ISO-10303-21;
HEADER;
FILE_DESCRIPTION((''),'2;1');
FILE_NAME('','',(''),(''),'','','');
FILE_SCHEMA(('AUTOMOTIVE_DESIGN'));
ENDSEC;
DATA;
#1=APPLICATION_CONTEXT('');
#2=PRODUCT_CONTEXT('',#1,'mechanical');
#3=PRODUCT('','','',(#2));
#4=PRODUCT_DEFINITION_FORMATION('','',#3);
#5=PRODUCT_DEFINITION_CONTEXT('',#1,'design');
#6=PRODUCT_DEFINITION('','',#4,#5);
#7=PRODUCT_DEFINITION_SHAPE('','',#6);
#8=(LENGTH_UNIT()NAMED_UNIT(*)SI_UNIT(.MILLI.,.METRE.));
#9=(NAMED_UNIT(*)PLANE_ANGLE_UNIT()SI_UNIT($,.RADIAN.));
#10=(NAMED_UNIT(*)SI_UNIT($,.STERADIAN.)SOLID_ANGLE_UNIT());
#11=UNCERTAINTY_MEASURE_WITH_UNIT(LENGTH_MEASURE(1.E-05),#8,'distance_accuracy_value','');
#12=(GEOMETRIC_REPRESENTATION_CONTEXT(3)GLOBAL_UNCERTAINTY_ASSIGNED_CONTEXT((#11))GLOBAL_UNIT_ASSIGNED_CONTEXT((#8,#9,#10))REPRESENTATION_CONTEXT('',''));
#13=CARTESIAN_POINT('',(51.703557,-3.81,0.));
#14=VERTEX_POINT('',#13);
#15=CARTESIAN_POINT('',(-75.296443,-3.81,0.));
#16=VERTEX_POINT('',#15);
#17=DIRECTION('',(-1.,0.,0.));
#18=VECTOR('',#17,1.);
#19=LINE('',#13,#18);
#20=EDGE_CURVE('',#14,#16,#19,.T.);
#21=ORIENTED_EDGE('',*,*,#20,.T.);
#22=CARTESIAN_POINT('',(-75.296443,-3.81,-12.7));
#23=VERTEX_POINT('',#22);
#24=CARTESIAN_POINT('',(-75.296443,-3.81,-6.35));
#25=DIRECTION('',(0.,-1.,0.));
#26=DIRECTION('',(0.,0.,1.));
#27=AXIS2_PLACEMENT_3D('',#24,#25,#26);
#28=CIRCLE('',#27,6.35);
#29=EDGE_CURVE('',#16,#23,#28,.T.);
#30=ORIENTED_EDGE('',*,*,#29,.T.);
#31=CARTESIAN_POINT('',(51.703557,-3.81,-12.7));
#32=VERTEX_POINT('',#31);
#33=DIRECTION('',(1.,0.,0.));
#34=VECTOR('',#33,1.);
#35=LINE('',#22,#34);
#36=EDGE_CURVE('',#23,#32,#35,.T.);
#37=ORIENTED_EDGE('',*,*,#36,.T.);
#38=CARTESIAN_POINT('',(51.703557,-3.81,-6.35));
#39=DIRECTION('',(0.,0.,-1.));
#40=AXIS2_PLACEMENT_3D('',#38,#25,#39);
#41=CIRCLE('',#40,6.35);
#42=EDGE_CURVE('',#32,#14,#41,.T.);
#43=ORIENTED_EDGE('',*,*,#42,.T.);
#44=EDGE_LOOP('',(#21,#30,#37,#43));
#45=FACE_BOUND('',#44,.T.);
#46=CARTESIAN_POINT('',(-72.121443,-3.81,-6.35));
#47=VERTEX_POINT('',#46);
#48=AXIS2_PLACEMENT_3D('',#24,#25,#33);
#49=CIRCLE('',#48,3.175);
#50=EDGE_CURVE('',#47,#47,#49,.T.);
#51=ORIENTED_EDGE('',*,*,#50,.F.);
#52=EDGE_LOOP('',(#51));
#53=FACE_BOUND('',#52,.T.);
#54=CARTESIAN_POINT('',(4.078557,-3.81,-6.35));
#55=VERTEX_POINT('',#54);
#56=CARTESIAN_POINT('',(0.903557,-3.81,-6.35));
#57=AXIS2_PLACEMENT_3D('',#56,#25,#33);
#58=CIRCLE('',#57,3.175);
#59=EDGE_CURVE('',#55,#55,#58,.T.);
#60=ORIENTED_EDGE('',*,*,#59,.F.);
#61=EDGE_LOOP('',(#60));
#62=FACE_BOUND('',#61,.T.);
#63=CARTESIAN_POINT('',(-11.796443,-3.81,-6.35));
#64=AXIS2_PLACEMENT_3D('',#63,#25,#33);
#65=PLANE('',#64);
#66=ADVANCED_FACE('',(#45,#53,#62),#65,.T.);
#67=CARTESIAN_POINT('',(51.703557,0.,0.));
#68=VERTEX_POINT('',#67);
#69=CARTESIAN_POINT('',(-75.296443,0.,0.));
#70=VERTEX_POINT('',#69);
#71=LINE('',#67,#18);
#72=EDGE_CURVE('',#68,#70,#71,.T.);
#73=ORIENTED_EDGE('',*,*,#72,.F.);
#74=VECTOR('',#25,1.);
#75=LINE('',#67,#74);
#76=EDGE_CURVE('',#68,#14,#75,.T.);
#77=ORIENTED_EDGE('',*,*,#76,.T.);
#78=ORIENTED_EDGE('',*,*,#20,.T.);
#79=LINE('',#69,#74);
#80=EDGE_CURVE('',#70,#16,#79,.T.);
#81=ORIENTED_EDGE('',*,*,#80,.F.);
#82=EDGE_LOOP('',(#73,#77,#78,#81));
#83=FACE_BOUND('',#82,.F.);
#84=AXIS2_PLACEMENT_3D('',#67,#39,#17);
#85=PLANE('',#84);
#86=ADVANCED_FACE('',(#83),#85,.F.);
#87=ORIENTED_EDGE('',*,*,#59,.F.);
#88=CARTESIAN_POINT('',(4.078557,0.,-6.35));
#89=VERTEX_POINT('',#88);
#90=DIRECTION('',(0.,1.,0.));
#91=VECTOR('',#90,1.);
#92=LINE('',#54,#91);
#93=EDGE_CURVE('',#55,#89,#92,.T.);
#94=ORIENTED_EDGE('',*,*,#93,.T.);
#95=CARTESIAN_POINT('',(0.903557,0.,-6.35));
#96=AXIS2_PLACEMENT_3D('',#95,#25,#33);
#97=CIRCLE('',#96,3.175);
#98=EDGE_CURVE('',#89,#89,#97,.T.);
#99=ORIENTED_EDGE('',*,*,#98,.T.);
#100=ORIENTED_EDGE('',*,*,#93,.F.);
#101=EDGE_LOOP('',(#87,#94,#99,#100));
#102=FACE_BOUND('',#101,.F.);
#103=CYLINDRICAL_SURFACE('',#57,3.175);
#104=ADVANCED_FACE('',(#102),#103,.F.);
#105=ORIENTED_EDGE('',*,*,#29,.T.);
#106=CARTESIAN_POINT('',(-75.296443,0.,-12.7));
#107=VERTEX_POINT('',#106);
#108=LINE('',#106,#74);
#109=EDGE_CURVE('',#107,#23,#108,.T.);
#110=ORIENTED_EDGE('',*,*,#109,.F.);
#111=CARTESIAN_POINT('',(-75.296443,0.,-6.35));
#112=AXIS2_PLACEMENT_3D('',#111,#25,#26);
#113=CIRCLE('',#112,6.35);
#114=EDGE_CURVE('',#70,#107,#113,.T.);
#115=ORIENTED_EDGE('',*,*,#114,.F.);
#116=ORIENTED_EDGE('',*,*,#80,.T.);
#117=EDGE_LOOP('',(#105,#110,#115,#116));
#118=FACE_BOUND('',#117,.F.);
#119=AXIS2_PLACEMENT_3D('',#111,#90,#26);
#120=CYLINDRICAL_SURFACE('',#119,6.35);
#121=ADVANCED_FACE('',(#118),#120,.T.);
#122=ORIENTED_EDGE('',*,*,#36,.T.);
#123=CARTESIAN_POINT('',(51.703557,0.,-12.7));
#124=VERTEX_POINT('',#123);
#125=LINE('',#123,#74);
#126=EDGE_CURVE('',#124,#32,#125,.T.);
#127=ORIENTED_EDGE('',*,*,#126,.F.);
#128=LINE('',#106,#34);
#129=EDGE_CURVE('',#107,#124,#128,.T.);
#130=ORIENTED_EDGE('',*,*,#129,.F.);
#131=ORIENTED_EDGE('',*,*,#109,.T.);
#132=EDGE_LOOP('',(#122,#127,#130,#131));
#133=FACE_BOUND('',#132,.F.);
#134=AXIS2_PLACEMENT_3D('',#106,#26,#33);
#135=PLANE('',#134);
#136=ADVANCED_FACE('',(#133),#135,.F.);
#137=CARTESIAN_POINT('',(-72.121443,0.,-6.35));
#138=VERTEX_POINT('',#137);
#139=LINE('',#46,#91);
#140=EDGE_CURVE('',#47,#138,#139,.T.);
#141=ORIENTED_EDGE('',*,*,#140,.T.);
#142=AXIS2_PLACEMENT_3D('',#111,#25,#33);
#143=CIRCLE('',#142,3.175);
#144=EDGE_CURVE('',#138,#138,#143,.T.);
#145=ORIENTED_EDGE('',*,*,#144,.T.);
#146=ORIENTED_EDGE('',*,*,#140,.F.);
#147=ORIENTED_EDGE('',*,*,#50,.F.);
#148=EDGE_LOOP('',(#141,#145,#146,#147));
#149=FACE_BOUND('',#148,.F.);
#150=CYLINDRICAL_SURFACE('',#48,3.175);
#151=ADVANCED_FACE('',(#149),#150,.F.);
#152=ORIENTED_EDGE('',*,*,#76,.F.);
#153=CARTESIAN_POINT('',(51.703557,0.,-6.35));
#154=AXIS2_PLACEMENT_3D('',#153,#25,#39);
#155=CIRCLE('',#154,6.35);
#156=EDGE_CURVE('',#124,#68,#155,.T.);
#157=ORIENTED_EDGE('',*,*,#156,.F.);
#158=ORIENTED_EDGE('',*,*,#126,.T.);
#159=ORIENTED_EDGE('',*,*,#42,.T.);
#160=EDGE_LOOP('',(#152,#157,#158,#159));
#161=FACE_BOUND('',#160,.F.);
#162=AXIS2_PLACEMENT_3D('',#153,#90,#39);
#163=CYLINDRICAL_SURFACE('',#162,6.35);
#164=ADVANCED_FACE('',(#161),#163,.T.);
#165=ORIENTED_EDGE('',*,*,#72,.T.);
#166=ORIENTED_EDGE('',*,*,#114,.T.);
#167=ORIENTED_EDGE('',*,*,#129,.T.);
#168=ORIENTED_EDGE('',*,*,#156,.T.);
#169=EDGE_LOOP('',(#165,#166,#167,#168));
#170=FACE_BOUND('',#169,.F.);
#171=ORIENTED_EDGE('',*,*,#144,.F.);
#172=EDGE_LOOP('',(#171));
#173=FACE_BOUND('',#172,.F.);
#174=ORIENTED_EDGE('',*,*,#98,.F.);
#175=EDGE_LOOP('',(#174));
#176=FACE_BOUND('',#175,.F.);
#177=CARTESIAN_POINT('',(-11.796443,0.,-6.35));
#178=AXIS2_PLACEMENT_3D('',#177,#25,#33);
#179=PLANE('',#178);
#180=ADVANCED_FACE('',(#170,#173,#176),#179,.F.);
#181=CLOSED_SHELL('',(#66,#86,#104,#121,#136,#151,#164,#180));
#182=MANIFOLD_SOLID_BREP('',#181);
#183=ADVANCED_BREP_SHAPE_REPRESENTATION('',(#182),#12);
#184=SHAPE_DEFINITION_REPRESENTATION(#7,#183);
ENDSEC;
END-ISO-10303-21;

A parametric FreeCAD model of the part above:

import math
import FreeCAD as App
import Part
import Sketcher
Q = App.Units.Quantity

doc = App.newDocument("Part")
body = doc.addObject("PartDesign::Body", "Body")

sketch1 = body.newObject("Sketcher::SketchObject", "Sketch")
sketch1.AttachmentSupport = (doc.getObject("XZ_Plane"), [""])
sketch1.MapMode = "FlatFace"
sketch1.addGeometry([
    Part.LineSegment(App.Vector(51.703557, 0, 0), App.Vector(-75.296443, 0, 0)),
    Part.ArcOfCircle(Part.Circle(App.Vector(-75.296443, -6.35, 0), App.Vector(0, 0, 1), 6.35), math.radians(90), math.radians(270)),
    Part.LineSegment(App.Vector(-75.296443, -12.7, 0), App.Vector(51.703557, -12.7, 0)),
    Part.ArcOfCircle(Part.Circle(App.Vector(51.703557, -6.35, 0), App.Vector(0, 0, 1), 6.35), math.radians(-90), math.radians(90)),
], False)
sketch1.addConstraint([
    Sketcher.Constraint("Tangent", 0, 2, 1, 1),
    Sketcher.Constraint("Tangent", 1, 2, 2, 1),
    Sketcher.Constraint("Tangent", 2, 2, 3, 1),
    Sketcher.Constraint("Tangent", 3, 2, 0, 1),
    Sketcher.Constraint("Horizontal", 0),
    Sketcher.Constraint("Horizontal", 2),
    Sketcher.Constraint("PointOnObject", 0, 2, -1),
    Sketcher.Constraint("DistanceX", 0, 2, 0, 1, Q("5 in")),
    Sketcher.Constraint("Radius", 1, Q("0.25 in")),
    Sketcher.Constraint("DistanceX", 1, 3, -1, 1, 75.296443),
])
pad1 = body.newObject("PartDesign::Pad", "Pad")
pad1.Profile = sketch1
pad1.Length = Q("0.15 in")

sketch2 = body.newObject("Sketcher::SketchObject", "Sketch001")
sketch2.AttachmentSupport = (doc.getObject("XZ_Plane"), [""])
sketch2.MapMode = "FlatFace"
sketch2.AttachmentOffset = App.Placement(App.Vector(0, 0, 0.15 * 25.4), App.Rotation())
sketch2.addGeometry([
    Part.Circle(App.Vector(-75.296443, -6.35, 0), App.Vector(0, 0, 1), 3.175),
    Part.Circle(App.Vector(0.903557, -6.35, 0), App.Vector(0, 0, 1), 3.175),
], False)
sketch2.addConstraint([
    Sketcher.Constraint("Equal", 0, 1),
    Sketcher.Constraint("Horizontal", 0, 3, 1, 3),
    Sketcher.Constraint("Diameter", 0, Q("0.25 in")),
    Sketcher.Constraint("DistanceX", 0, 3, 1, 3, Q("3 in")),
    Sketcher.Constraint("DistanceY", 0, 3, -1, 1, Q("0.25 in")),
    Sketcher.Constraint("DistanceX", 0, 3, -1, 1, 75.296443),
])
pocket1 = body.newObject("PartDesign::Pocket", "Pocket")
pocket1.Profile = sketch2
pocket1.Length = Q("1 in")

doc.recompute()
